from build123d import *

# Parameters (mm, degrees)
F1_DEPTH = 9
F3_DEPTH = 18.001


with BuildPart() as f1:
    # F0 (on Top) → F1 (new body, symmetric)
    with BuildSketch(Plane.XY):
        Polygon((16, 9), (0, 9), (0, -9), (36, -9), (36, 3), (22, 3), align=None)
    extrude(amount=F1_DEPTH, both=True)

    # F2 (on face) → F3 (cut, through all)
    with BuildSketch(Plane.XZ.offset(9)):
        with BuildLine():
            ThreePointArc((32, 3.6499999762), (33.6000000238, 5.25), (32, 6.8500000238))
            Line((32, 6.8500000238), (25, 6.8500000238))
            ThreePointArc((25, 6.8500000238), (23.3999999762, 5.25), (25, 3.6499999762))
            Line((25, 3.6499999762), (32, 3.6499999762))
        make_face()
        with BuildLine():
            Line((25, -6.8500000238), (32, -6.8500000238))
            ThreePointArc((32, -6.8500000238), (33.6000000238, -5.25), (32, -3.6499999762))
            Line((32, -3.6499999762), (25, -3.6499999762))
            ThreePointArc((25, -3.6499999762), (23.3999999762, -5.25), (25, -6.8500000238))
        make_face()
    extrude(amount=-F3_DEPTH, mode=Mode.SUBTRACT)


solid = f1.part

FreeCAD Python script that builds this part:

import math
import FreeCAD as App
import Part
import Sketcher


def add_polygon(sketch, points):
    """Adds a closed chain of lines whose ends are joined by coincident constraints."""
    first, n = sketch.GeometryCount, len(points)
    for a, b in zip(points, points[1:] + points[:1]):
        sketch.addGeometry(Part.LineSegment(App.Vector(*a, 0), App.Vector(*b, 0)), False)
    for i in range(n):
        sketch.addConstraint(Sketcher.Constraint("Coincident", first + i, 2, first + (i + 1) % n, 1))

doc = App.newDocument("Part")
body = doc.addObject("PartDesign::Body", "Body")

# Sketch on XY plane
sketch1 = body.newObject("Sketcher::SketchObject", "Sketch")
sketch1.AttachmentSupport = (doc.getObject("XY_Plane"), [""])
sketch1.MapMode = "FlatFace"
add_polygon(sketch1, [(16, 9), (0, 9), (0, -9), (36, -9), (36, 3), (22, 3)])  # lines 0-5
sketch1.addConstraint(Sketcher.Constraint("Horizontal", 0))
sketch1.addConstraint(Sketcher.Constraint("Vertical", 1))
sketch1.addConstraint(Sketcher.Constraint("Horizontal", 2))
sketch1.addConstraint(Sketcher.Constraint("Vertical", 3))
sketch1.addConstraint(Sketcher.Constraint("Horizontal", 4))
sketch1.addConstraint(Sketcher.Constraint("Symmetric", 0, 2, 1, 2, -1, 1))
sketch1.addConstraint(Sketcher.Constraint("DistanceX", 0, 2, 0, 1, 16.0))
sketch1.addConstraint(Sketcher.Constraint("DistanceX", 2, 1, 2, 2, 36.0))
sketch1.addConstraint(Sketcher.Constraint("DistanceX", 4, 2, 4, 1, 14.0))
sketch1.addConstraint(Sketcher.Constraint("DistanceY", 1, 2, 1, 1, 18.0))
sketch1.addConstraint(Sketcher.Constraint("DistanceY", 3, 1, 3, 2, 12.0))
pad1 = body.newObject("PartDesign::Pad", "Pad")
pad1.Profile = sketch1
pad1.Length = 18
pad1.Midplane = True

# Sketch on XZ plane
sketch2 = body.newObject("Sketcher::SketchObject", "Sketch001")
sketch2.AttachmentSupport = (doc.getObject("XZ_Plane"), [""])
sketch2.MapMode = "FlatFace"
sketch2.AttachmentOffset = App.Placement(App.Vector(0, 0, 9), App.Rotation())
sketch2.addGeometry(Part.ArcOfCircle(Part.Circle(App.Vector(32, 5.25, 0), App.Vector(0, 0, 1), 1.6), math.radians(-90), math.radians(90)), False)
sketch2.addGeometry(Part.LineSegment(App.Vector(32, 6.85, 0), App.Vector(25, 6.85, 0)), False)
sketch2.addGeometry(Part.ArcOfCircle(Part.Circle(App.Vector(25, 5.25, 0), App.Vector(0, 0, 1), 1.6), math.radians(90), math.radians(270)), False)
sketch2.addGeometry(Part.LineSegment(App.Vector(25, 3.65, 0), App.Vector(32, 3.65, 0)), False)
sketch2.addGeometry(Part.LineSegment(App.Vector(25, -6.85, 0), App.Vector(32, -6.85, 0)), False)
sketch2.addGeometry(Part.ArcOfCircle(Part.Circle(App.Vector(32, -5.25, 0), App.Vector(0, 0, 1), 1.6), math.radians(-90), math.radians(90)), False)
sketch2.addGeometry(Part.LineSegment(App.Vector(32, -3.65, 0), App.Vector(25, -3.65, 0)), False)
sketch2.addGeometry(Part.ArcOfCircle(Part.Circle(App.Vector(25, -5.25, 0), App.Vector(0, 0, 1), 1.6), math.radians(90), math.radians(270)), False)
sketch2.addConstraint(Sketcher.Constraint("Tangent", 0, 2, 1, 1))
sketch2.addConstraint(Sketcher.Constraint("Tangent", 1, 2, 2, 1))
sketch2.addConstraint(Sketcher.Constraint("Tangent", 2, 2, 3, 1))
sketch2.addConstraint(Sketcher.Constraint("Tangent", 3, 2, 0, 1))
sketch2.addConstraint(Sketcher.Constraint("Tangent", 4, 2, 5, 1))
sketch2.addConstraint(Sketcher.Constraint("Tangent", 5, 2, 6, 1))
sketch2.addConstraint(Sketcher.Constraint("Tangent", 6, 2, 7, 1))
sketch2.addConstraint(Sketcher.Constraint("Tangent", 7, 2, 4, 1))
sketch2.addConstraint(Sketcher.Constraint("Horizontal", 1))
sketch2.addConstraint(Sketcher.Constraint("Horizontal", 3))
sketch2.addConstraint(Sketcher.Constraint("Horizontal", 4))
sketch2.addConstraint(Sketcher.Constraint("Horizontal", 6))
sketch2.addConstraint(Sketcher.Constraint("Equal", 2, 5))
sketch2.addConstraint(Sketcher.Constraint("Symmetric", 0, 3, 5, 3, -1))
sketch2.addConstraint(Sketcher.Constraint("Vertical", 2, 3, 7, 3))
sketch2.addConstraint(Sketcher.Constraint("Radius", 0, 1.6))
sketch2.addConstraint(Sketcher.Constraint("DistanceX", 1, 2, 1, 1, 7.0))
sketch2.addConstraint(Sketcher.Constraint("DistanceX", -1, 1, 0, 3, 32.0))
sketch2.addConstraint(Sketcher.Constraint("DistanceY", 5, 3, 0, 3, 10.5))
pocket1 = body.newObject("PartDesign::Pocket", "Pocket")
pocket1.Profile = sketch2
pocket1.Type = "ThroughAll"

doc.recompute()
